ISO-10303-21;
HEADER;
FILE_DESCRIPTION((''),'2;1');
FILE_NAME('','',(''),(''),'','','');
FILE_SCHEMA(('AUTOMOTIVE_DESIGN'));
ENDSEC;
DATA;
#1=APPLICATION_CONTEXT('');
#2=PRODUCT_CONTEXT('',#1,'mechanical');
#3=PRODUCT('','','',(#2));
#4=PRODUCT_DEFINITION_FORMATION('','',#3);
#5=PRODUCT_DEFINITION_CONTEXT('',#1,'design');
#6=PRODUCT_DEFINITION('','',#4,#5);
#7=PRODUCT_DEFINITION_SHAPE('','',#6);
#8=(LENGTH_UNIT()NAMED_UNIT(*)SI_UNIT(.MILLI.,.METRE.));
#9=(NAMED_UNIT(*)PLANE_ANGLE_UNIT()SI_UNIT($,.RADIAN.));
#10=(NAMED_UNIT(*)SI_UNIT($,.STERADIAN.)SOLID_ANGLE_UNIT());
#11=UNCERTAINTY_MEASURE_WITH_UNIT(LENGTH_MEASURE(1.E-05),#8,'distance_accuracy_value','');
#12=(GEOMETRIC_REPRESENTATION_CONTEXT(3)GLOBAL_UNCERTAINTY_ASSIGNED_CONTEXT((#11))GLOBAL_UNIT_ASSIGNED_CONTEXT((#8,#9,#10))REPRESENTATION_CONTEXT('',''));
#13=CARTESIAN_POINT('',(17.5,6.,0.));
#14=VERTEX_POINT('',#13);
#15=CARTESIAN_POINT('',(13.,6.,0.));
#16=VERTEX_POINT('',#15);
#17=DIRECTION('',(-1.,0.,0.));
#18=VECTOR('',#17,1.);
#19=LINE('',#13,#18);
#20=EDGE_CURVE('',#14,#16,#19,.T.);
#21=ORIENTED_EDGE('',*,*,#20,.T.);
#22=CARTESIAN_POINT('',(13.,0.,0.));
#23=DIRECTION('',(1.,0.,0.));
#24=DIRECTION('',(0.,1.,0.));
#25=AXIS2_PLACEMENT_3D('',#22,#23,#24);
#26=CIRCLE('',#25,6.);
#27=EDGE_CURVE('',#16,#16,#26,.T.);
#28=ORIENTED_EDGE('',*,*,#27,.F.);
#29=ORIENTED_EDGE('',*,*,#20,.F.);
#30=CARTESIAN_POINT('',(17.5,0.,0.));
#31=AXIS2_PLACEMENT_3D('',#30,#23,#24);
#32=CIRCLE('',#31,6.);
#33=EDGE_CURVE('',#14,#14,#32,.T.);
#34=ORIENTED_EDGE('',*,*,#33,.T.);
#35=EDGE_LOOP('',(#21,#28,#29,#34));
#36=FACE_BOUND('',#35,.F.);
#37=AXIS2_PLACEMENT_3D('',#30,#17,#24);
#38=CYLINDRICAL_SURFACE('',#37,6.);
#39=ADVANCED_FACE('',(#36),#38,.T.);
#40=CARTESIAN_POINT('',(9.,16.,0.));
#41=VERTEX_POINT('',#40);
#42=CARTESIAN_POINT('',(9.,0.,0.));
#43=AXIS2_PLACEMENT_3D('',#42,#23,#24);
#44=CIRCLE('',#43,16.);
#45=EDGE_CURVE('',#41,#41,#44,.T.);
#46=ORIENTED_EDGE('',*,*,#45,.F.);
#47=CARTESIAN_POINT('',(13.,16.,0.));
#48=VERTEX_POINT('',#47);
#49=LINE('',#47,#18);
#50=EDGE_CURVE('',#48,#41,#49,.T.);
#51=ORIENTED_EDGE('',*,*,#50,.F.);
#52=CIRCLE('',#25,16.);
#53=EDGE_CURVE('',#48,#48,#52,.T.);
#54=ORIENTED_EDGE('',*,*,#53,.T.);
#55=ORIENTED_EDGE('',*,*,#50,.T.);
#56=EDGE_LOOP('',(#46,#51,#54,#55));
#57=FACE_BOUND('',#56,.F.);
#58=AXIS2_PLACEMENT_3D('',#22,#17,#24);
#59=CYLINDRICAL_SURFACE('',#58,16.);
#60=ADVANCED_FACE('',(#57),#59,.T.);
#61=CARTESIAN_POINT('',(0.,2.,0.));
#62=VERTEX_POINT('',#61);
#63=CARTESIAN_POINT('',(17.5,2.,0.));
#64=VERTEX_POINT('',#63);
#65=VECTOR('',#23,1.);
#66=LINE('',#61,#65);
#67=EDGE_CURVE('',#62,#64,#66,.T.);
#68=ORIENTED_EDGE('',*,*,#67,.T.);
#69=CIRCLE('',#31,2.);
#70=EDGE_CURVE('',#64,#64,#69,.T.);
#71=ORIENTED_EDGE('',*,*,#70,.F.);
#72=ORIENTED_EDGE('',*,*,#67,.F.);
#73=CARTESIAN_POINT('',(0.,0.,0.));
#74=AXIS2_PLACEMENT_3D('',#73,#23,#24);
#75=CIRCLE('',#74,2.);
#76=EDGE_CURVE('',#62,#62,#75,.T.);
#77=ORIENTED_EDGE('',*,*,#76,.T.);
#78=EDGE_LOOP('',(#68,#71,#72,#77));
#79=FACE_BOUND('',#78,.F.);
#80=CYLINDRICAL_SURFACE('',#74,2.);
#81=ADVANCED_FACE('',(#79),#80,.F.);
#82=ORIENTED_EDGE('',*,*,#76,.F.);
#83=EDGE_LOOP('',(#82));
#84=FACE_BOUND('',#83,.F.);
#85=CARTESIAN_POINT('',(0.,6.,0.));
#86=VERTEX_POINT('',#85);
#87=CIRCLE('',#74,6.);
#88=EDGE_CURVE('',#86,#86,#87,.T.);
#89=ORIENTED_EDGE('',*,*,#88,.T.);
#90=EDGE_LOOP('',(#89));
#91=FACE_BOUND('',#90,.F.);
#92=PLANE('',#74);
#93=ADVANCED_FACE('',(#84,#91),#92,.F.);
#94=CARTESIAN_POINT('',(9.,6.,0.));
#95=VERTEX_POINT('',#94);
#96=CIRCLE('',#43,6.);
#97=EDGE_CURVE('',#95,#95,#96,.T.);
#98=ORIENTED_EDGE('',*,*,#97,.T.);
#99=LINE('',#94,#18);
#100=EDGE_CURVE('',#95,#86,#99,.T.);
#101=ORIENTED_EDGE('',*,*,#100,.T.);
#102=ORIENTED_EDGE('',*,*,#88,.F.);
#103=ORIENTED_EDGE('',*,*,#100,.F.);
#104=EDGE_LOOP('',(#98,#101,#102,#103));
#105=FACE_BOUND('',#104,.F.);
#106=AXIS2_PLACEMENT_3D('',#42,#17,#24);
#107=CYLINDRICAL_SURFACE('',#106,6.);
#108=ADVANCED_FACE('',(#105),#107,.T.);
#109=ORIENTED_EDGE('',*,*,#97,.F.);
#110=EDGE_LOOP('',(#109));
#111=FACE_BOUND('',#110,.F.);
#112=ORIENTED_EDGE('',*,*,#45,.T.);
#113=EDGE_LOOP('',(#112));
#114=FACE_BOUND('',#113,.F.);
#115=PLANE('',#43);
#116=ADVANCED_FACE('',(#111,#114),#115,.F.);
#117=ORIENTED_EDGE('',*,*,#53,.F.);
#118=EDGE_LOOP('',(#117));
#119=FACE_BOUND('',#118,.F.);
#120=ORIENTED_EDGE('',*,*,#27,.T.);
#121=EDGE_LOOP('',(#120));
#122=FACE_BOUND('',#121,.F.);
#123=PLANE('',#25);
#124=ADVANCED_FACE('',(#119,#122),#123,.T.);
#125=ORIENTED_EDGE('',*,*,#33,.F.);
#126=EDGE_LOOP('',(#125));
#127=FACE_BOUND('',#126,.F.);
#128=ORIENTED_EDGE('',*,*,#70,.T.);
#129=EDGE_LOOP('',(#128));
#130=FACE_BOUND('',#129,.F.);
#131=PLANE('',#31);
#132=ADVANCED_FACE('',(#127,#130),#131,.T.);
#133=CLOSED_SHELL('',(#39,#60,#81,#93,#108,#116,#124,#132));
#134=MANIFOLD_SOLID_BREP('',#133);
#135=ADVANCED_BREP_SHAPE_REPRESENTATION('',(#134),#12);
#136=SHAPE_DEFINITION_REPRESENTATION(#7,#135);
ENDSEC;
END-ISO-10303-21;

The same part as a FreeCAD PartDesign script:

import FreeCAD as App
import Part
import Sketcher

doc = App.newDocument("Part")
body = doc.addObject("PartDesign::Body", "Body")

# Sketch on XY plane
sketch1 = doc.addObject("Sketcher::SketchObject", "Sketch")
body.addObject(sketch1)
sketch1.AttachmentSupport = (doc.XY_Plane, [""])
sketch1.MapMode = "FlatFace"
sketch1.addGeometry([
    Part.LineSegment(App.Vector(0, 6, 0), App.Vector(0, 2, 0)),  # 0
    Part.LineSegment(App.Vector(0, 2, 0), App.Vector(17.5, 2, 0)),  # 1
    Part.LineSegment(App.Vector(17.5, 2, 0), App.Vector(17.5, 6, 0)),  # 2
    Part.LineSegment(App.Vector(17.5, 6, 0), App.Vector(13, 6, 0)),  # 3
    Part.LineSegment(App.Vector(13, 6, 0), App.Vector(13, 16, 0)),  # 4
    Part.LineSegment(App.Vector(13, 16, 0), App.Vector(9, 16, 0)),  # 5
    Part.LineSegment(App.Vector(9, 16, 0), App.Vector(9, 6, 0)),  # 6
    Part.LineSegment(App.Vector(9, 6, 0), App.Vector(0, 6, 0)),  # 7
], False)
sketch1.addConstraint([
    Sketcher.Constraint("Coincident", 0, 2, 1, 1),
    Sketcher.Constraint("Coincident", 1, 2, 2, 1),
    Sketcher.Constraint("Coincident", 2, 2, 3, 1),
    Sketcher.Constraint("Coincident", 3, 2, 4, 1),
    Sketcher.Constraint("Coincident", 4, 2, 5, 1),
    Sketcher.Constraint("Coincident", 5, 2, 6, 1),
    Sketcher.Constraint("Coincident", 6, 2, 7, 1),
    Sketcher.Constraint("Coincident", 7, 2, 0, 1),
    Sketcher.Constraint("Vertical", 0),
    Sketcher.Constraint("Horizontal", 1),
    Sketcher.Constraint("Vertical", 2),
    Sketcher.Constraint("Horizontal", 3),
    Sketcher.Constraint("Vertical", 4),
    Sketcher.Constraint("Horizontal", 5),
    Sketcher.Constraint("Vertical", 6),
    Sketcher.Constraint("Horizontal", 7),
    Sketcher.Constraint("PointOnObject", 0, 2, -2),
    Sketcher.Constraint("Horizontal", 3, 2, 6, 2),
    Sketcher.Constraint("Equal", 5, 0),
    Sketcher.Constraint("DistanceX", 5, 2, 5, 1, 4.0),
    Sketcher.Constraint("DistanceX", 7, 2, 7, 1, 9.0),
    Sketcher.Constraint("DistanceY", 4, 1, 4, 2, 10.0),
    Sketcher.Constraint("DistanceX", 3, 2, 3, 1, 4.5),
    Sketcher.Constraint("DistanceY", -1, 1, 0, 2, 2.0),
])
revolution = doc.addObject("PartDesign::Revolution", "Revolution")
body.addObject(revolution)
revolution.Profile = sketch1
revolution.ReferenceAxis = (sketch1, ["H_Axis"])
revolution.Angle = 360

doc.recompute()
